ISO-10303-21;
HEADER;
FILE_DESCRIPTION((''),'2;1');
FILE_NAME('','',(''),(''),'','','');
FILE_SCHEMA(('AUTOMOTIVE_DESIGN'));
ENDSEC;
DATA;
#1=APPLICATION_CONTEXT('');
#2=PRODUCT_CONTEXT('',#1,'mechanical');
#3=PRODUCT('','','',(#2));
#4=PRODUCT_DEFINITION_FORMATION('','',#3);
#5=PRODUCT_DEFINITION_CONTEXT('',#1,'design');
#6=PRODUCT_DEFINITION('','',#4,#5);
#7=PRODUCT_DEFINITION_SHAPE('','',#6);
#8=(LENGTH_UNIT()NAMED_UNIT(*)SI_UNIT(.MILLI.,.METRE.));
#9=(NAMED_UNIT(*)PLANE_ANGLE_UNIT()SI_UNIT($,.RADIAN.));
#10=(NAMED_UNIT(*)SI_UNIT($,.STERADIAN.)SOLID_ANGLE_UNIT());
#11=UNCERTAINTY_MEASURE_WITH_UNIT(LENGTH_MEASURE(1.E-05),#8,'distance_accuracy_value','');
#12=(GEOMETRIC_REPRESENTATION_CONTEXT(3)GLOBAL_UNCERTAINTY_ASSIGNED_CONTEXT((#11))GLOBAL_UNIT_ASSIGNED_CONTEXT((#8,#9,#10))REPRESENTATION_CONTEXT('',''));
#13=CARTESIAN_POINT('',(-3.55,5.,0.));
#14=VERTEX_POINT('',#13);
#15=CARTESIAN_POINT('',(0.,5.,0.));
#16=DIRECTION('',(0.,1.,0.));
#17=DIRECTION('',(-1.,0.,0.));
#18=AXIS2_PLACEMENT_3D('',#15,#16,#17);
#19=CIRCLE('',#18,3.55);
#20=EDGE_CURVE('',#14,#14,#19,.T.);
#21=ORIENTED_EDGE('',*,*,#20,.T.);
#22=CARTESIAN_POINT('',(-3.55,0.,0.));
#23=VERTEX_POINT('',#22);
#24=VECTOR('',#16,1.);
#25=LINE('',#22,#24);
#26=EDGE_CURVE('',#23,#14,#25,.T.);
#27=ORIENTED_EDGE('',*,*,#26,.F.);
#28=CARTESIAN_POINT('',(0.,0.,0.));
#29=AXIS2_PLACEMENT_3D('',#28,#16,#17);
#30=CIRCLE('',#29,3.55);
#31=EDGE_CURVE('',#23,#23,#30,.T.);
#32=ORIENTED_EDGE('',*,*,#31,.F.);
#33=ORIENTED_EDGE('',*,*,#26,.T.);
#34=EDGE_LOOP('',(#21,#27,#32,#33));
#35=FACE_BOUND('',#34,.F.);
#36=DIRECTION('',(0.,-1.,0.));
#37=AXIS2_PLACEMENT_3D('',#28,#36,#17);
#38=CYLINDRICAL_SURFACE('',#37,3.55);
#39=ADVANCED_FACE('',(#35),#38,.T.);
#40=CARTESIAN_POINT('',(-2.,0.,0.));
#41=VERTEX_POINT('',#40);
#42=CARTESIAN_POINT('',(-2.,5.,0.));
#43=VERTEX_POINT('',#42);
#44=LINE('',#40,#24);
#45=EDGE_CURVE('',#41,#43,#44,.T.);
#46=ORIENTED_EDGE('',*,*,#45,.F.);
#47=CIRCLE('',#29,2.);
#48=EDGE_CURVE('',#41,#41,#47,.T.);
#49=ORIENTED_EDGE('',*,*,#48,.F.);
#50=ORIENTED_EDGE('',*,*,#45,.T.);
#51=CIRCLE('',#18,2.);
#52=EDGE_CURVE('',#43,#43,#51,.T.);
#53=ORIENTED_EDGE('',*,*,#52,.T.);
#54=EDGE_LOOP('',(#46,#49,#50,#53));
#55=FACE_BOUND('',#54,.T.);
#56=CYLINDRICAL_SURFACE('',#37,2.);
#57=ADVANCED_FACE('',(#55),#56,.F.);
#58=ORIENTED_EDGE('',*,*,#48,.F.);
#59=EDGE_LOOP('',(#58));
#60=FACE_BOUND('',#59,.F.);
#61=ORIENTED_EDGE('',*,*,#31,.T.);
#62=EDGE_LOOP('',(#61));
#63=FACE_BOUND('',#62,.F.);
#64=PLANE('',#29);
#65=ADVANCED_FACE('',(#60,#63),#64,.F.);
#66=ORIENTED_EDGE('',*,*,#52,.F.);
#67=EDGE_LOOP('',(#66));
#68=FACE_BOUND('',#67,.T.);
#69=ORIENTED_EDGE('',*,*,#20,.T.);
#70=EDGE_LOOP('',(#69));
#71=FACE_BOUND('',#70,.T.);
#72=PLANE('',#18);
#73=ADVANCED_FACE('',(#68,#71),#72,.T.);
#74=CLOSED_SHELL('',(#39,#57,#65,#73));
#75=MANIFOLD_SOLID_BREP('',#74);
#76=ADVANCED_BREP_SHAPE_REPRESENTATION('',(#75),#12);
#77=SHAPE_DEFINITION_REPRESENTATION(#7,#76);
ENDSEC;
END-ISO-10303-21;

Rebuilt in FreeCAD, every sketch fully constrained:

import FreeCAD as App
import Part
import Sketcher

doc = App.newDocument("Part")
body = doc.addObject("PartDesign::Body", "Body")

# Sketch on XZ plane
sketch1 = body.newObject("Sketcher::SketchObject", "Sketch")
sketch1.AttachmentSupport = (doc.getObject("XZ_Plane"), [""])
sketch1.MapMode = "FlatFace"
sketch1.addGeometry([
    Part.Circle(App.Vector(0, 0, 0), App.Vector(0, 0, 1), 3.5),
    Part.Circle(App.Vector(0, 0, 0), App.Vector(0, 0, 1), 2),
], False)
sketch1.addConstraint([
    Sketcher.Constraint("Coincident", 0, 3, -1, 1),
    Sketcher.Constraint("Coincident", 1, 3, -1, 1),
    Sketcher.Constraint("Diameter", 1, 4.0),
    Sketcher.Constraint("Diameter", 0, 7.1),
])
pad1 = body.newObject("PartDesign::Pad", "Pad")
pad1.Profile = sketch1
pad1.Length = 5
pad1.Reversed = True

doc.recompute()
